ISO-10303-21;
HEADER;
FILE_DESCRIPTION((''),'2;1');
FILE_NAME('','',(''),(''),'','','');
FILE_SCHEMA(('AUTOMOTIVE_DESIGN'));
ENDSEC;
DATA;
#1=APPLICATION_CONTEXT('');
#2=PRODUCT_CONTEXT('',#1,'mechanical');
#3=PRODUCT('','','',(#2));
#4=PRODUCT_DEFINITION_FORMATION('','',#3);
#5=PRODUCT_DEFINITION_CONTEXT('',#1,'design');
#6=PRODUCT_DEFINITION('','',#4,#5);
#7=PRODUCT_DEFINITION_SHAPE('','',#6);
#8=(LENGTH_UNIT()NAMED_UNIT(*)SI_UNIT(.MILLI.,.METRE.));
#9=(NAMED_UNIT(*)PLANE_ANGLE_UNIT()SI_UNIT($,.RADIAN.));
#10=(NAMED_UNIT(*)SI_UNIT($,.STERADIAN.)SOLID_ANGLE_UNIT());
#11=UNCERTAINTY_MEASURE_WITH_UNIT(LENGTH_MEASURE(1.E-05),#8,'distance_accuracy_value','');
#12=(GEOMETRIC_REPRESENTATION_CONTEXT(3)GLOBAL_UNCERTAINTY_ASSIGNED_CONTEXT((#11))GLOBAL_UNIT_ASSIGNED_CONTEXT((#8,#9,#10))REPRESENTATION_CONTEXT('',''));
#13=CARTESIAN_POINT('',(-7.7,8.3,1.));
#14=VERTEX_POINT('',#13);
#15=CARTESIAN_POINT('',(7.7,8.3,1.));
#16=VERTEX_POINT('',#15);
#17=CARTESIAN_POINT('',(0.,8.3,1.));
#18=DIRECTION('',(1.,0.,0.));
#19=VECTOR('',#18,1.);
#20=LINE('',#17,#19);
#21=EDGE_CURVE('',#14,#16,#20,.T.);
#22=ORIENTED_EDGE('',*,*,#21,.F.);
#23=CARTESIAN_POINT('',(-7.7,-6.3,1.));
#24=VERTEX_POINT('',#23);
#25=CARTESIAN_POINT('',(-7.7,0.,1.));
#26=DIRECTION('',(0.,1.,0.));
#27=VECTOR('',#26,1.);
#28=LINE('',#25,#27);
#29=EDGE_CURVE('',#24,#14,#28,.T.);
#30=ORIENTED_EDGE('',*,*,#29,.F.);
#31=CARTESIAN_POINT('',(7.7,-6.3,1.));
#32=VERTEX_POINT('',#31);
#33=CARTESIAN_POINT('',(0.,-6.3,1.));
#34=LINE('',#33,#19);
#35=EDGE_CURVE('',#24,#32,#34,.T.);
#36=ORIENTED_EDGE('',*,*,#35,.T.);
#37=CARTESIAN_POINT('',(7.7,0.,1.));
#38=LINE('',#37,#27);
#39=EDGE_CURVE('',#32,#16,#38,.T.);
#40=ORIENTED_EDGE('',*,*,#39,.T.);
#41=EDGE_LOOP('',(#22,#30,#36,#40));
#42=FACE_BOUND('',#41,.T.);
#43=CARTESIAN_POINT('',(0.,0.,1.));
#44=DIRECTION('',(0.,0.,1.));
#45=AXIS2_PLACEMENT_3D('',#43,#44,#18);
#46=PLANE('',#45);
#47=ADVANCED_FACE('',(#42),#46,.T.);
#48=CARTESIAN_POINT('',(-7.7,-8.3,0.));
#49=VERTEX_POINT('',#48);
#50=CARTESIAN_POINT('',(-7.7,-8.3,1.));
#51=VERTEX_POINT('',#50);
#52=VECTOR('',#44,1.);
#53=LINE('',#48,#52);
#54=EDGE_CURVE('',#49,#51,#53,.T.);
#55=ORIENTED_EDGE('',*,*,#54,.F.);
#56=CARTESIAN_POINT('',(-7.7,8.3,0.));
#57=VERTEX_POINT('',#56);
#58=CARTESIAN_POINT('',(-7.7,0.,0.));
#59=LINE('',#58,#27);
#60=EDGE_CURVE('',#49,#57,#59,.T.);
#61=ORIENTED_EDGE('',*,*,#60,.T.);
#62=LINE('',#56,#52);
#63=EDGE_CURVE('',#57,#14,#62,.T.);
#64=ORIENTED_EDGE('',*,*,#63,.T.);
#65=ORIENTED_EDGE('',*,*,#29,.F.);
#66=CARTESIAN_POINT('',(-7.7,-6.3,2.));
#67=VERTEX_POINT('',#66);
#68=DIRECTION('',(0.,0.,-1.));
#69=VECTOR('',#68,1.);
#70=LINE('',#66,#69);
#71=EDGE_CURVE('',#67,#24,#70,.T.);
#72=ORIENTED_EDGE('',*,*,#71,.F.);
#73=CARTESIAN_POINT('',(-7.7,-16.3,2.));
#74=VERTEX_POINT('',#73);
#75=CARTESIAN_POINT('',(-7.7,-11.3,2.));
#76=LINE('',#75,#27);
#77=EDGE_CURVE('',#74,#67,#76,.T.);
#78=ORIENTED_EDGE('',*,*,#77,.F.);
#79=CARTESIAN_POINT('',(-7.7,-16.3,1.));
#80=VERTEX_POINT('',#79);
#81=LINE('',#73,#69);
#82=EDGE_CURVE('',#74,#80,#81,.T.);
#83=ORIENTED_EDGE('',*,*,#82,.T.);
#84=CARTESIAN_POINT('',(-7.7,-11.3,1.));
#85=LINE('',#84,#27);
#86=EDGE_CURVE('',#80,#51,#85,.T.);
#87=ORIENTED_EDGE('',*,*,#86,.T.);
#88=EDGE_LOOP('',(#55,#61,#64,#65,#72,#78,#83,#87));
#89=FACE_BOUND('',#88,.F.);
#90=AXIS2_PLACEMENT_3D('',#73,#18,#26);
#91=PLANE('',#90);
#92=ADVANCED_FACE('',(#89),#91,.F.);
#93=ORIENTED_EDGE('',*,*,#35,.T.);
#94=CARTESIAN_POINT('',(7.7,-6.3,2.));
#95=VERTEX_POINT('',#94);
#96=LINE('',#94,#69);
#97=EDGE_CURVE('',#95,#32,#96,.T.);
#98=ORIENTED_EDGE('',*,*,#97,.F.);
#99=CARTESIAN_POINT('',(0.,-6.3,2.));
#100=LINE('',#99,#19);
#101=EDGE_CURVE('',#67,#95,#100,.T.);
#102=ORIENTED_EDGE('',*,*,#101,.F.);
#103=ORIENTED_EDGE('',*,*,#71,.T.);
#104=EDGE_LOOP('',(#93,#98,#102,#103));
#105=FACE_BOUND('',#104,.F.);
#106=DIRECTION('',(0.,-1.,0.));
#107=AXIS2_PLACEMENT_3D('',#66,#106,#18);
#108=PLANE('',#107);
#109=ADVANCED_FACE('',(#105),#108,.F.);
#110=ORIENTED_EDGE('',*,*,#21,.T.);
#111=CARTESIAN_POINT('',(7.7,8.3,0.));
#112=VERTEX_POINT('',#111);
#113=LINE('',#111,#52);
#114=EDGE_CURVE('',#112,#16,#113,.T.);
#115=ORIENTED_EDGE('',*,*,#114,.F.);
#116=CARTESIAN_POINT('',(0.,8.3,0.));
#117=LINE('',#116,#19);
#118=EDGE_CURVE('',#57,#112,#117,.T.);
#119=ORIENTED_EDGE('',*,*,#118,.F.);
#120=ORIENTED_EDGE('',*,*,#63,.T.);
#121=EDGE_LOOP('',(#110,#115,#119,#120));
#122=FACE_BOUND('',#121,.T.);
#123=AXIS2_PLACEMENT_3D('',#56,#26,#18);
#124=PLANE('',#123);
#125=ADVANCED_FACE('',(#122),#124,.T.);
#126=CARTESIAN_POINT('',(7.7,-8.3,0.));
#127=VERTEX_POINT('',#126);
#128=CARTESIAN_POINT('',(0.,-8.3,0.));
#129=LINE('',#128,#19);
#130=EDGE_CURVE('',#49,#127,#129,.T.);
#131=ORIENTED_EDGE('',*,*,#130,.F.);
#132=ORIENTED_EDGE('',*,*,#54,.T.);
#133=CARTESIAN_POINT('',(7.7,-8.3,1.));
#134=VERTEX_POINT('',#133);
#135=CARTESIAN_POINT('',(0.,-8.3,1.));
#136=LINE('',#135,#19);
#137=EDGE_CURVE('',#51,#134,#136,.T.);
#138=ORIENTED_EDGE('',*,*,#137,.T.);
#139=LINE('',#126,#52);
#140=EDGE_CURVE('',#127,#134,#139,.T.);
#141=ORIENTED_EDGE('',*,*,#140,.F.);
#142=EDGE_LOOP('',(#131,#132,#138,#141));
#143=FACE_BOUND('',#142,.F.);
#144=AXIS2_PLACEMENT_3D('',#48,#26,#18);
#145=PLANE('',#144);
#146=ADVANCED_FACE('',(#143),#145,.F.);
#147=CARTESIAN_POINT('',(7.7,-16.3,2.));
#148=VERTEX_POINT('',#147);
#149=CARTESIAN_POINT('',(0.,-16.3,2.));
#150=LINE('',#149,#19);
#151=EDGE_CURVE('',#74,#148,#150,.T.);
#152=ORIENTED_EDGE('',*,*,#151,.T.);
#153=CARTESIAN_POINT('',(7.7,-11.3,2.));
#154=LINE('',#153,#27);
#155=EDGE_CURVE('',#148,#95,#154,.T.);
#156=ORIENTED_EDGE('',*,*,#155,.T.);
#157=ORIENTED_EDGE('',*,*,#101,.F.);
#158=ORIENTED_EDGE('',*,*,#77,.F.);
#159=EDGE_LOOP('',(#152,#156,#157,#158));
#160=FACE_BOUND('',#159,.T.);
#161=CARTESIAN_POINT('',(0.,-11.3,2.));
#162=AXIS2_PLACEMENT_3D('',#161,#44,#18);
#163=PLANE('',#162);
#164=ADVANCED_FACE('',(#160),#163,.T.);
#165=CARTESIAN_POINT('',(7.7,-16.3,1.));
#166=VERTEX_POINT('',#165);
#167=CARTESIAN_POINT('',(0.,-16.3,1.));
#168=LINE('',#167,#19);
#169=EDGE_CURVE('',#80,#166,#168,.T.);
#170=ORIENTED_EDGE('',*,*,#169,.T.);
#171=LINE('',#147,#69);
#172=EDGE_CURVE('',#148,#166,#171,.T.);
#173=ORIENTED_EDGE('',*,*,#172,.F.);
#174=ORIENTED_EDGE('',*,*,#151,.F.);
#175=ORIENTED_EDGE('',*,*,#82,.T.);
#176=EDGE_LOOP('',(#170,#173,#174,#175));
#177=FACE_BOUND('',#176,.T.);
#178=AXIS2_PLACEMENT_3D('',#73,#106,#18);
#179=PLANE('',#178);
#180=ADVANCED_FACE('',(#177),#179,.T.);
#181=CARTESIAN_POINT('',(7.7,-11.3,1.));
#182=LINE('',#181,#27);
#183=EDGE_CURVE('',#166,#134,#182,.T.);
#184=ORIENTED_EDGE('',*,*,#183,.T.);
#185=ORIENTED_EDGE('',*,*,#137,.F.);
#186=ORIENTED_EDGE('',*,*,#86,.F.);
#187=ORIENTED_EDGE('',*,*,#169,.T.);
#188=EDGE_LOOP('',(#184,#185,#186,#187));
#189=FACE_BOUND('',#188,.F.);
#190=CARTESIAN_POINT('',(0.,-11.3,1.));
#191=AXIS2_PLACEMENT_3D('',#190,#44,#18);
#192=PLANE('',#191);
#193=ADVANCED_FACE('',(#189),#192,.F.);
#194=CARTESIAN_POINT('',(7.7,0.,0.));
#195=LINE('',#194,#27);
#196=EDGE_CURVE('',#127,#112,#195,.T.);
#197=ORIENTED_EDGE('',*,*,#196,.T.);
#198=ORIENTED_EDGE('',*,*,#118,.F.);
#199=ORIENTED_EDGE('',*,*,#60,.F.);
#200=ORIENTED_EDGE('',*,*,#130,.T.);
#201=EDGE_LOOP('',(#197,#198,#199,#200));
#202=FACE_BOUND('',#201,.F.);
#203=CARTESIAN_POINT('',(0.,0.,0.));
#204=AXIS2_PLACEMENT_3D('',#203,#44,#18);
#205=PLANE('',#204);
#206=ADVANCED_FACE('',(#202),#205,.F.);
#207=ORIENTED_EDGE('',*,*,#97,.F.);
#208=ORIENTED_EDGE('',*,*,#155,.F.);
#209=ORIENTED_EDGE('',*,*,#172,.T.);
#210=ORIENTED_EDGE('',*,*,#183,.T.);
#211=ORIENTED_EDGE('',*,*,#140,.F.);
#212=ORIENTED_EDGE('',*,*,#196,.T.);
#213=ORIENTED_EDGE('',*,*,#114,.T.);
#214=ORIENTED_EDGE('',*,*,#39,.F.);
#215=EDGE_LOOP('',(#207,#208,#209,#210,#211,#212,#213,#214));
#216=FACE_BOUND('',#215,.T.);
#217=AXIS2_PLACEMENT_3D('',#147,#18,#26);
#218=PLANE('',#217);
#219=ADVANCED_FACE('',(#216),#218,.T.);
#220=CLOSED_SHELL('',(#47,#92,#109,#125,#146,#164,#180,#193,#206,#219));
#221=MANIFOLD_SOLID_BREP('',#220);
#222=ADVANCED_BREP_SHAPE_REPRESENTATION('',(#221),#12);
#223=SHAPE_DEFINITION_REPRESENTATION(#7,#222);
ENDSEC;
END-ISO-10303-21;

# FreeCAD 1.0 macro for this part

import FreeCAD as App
import Part
import Sketcher
from FreeCAD import Vector


def add_polygon(sketch, points):
    """Adds a closed chain of lines whose ends are joined by coincident constraints."""
    first, n = sketch.GeometryCount, len(points)
    for a, b in zip(points, points[1:] + points[:1]):
        sketch.addGeometry(Part.LineSegment(App.Vector(*a, 0), App.Vector(*b, 0)), False)
    for i in range(n):
        sketch.addConstraint(Sketcher.Constraint("Coincident", first + i, 2, first + (i + 1) % n, 1))

doc = App.newDocument("Part")
params = doc.addObject("Spreadsheet::Sheet", "Params")
for row, (alias, value) in enumerate([
    ("sketch1_width", "15.4 mm"),
    ("sketch1_height", "16.6 mm"),
    ("pad1_length", "1 mm"),
    ("sketch2_height", "10 mm"),
    ("sketch2_width", "15.4 mm"),
    ("pad2_length", "1 mm"),
], start=1):
    params.set(f"A{row}", alias)
    params.set(f"B{row}", "=" + value)
    params.setAlias(f"B{row}", alias)

body = doc.addObject("PartDesign::Body", "Body")

# Sketch on XY plane
sketch1 = body.newObject("Sketcher::SketchObject", "Sketch")
sketch1.AttachmentSupport = (doc.getObject("XY_Plane"), [""])
sketch1.MapMode = "FlatFace"
add_polygon(sketch1, [(-8, 8), (-8, -8), (8, -8), (8, 8)])  # lines 0-3
sketch1.addConstraint(Sketcher.Constraint("Vertical", 0))
sketch1.addConstraint(Sketcher.Constraint("Horizontal", 1))
sketch1.addConstraint(Sketcher.Constraint("Vertical", 2))
sketch1.addConstraint(Sketcher.Constraint("Horizontal", 3))
sketch1.addConstraint(Sketcher.Constraint("Symmetric", 0, 2, 2, 2, -1, 1))
sketch1.addConstraint(Sketcher.Constraint("DistanceX", 1, 1, 1, 2, 15.4))
sketch1.addConstraint(Sketcher.Constraint("DistanceY", 0, 2, 0, 1, 16.6))
sketch1.setExpression("Constraints[9]", "Params.sketch1_width")
sketch1.setExpression("Constraints[10]", "Params.sketch1_height")
pad1 = body.newObject("PartDesign::Pad", "Pad")
pad1.Profile = sketch1
pad1.setExpression("Length", "Params.pad1_length")

# Sketch on XY plane
sketch2 = body.newObject("Sketcher::SketchObject", "Sketch001")
sketch2.AttachmentSupport = (doc.getObject("XY_Plane"), [""])
sketch2.MapMode = "FlatFace"
sketch2.AttachmentOffset = App.Placement(Vector(0, 0, 2), App.Rotation())
add_polygon(sketch2, [(-8, -6), (-8, -16), (8, -16), (8, -6)])  # lines 0-3
sketch2.addConstraint(Sketcher.Constraint("Vertical", 0))
sketch2.addConstraint(Sketcher.Constraint("Horizontal", 1))
sketch2.addConstraint(Sketcher.Constraint("Vertical", 2))
sketch2.addConstraint(Sketcher.Constraint("Horizontal", 3))
sketch2.addConstraint(Sketcher.Constraint("DistanceY", 0, 2, 0, 1, 10.0))
sketch2.addConstraint(Sketcher.Constraint("DistanceX", 1, 1, 1, 2, 15.4))
sketch2.addConstraint(Sketcher.Constraint("DistanceX", 0, 2, -1, 1, 7.7))
sketch2.addConstraint(Sketcher.Constraint("DistanceY", 0, 2, -1, 1, 16.3))
sketch2.setExpression("Constraints[8]", "Params.sketch2_height")
sketch2.setExpression("Constraints[9]", "Params.sketch2_width")
pad2 = body.newObject("PartDesign::Pad", "Pad001")
pad2.Profile = sketch2
pad2.setExpression("Length", "Params.pad2_length")
pad2.Reversed = True

doc.recompute()
